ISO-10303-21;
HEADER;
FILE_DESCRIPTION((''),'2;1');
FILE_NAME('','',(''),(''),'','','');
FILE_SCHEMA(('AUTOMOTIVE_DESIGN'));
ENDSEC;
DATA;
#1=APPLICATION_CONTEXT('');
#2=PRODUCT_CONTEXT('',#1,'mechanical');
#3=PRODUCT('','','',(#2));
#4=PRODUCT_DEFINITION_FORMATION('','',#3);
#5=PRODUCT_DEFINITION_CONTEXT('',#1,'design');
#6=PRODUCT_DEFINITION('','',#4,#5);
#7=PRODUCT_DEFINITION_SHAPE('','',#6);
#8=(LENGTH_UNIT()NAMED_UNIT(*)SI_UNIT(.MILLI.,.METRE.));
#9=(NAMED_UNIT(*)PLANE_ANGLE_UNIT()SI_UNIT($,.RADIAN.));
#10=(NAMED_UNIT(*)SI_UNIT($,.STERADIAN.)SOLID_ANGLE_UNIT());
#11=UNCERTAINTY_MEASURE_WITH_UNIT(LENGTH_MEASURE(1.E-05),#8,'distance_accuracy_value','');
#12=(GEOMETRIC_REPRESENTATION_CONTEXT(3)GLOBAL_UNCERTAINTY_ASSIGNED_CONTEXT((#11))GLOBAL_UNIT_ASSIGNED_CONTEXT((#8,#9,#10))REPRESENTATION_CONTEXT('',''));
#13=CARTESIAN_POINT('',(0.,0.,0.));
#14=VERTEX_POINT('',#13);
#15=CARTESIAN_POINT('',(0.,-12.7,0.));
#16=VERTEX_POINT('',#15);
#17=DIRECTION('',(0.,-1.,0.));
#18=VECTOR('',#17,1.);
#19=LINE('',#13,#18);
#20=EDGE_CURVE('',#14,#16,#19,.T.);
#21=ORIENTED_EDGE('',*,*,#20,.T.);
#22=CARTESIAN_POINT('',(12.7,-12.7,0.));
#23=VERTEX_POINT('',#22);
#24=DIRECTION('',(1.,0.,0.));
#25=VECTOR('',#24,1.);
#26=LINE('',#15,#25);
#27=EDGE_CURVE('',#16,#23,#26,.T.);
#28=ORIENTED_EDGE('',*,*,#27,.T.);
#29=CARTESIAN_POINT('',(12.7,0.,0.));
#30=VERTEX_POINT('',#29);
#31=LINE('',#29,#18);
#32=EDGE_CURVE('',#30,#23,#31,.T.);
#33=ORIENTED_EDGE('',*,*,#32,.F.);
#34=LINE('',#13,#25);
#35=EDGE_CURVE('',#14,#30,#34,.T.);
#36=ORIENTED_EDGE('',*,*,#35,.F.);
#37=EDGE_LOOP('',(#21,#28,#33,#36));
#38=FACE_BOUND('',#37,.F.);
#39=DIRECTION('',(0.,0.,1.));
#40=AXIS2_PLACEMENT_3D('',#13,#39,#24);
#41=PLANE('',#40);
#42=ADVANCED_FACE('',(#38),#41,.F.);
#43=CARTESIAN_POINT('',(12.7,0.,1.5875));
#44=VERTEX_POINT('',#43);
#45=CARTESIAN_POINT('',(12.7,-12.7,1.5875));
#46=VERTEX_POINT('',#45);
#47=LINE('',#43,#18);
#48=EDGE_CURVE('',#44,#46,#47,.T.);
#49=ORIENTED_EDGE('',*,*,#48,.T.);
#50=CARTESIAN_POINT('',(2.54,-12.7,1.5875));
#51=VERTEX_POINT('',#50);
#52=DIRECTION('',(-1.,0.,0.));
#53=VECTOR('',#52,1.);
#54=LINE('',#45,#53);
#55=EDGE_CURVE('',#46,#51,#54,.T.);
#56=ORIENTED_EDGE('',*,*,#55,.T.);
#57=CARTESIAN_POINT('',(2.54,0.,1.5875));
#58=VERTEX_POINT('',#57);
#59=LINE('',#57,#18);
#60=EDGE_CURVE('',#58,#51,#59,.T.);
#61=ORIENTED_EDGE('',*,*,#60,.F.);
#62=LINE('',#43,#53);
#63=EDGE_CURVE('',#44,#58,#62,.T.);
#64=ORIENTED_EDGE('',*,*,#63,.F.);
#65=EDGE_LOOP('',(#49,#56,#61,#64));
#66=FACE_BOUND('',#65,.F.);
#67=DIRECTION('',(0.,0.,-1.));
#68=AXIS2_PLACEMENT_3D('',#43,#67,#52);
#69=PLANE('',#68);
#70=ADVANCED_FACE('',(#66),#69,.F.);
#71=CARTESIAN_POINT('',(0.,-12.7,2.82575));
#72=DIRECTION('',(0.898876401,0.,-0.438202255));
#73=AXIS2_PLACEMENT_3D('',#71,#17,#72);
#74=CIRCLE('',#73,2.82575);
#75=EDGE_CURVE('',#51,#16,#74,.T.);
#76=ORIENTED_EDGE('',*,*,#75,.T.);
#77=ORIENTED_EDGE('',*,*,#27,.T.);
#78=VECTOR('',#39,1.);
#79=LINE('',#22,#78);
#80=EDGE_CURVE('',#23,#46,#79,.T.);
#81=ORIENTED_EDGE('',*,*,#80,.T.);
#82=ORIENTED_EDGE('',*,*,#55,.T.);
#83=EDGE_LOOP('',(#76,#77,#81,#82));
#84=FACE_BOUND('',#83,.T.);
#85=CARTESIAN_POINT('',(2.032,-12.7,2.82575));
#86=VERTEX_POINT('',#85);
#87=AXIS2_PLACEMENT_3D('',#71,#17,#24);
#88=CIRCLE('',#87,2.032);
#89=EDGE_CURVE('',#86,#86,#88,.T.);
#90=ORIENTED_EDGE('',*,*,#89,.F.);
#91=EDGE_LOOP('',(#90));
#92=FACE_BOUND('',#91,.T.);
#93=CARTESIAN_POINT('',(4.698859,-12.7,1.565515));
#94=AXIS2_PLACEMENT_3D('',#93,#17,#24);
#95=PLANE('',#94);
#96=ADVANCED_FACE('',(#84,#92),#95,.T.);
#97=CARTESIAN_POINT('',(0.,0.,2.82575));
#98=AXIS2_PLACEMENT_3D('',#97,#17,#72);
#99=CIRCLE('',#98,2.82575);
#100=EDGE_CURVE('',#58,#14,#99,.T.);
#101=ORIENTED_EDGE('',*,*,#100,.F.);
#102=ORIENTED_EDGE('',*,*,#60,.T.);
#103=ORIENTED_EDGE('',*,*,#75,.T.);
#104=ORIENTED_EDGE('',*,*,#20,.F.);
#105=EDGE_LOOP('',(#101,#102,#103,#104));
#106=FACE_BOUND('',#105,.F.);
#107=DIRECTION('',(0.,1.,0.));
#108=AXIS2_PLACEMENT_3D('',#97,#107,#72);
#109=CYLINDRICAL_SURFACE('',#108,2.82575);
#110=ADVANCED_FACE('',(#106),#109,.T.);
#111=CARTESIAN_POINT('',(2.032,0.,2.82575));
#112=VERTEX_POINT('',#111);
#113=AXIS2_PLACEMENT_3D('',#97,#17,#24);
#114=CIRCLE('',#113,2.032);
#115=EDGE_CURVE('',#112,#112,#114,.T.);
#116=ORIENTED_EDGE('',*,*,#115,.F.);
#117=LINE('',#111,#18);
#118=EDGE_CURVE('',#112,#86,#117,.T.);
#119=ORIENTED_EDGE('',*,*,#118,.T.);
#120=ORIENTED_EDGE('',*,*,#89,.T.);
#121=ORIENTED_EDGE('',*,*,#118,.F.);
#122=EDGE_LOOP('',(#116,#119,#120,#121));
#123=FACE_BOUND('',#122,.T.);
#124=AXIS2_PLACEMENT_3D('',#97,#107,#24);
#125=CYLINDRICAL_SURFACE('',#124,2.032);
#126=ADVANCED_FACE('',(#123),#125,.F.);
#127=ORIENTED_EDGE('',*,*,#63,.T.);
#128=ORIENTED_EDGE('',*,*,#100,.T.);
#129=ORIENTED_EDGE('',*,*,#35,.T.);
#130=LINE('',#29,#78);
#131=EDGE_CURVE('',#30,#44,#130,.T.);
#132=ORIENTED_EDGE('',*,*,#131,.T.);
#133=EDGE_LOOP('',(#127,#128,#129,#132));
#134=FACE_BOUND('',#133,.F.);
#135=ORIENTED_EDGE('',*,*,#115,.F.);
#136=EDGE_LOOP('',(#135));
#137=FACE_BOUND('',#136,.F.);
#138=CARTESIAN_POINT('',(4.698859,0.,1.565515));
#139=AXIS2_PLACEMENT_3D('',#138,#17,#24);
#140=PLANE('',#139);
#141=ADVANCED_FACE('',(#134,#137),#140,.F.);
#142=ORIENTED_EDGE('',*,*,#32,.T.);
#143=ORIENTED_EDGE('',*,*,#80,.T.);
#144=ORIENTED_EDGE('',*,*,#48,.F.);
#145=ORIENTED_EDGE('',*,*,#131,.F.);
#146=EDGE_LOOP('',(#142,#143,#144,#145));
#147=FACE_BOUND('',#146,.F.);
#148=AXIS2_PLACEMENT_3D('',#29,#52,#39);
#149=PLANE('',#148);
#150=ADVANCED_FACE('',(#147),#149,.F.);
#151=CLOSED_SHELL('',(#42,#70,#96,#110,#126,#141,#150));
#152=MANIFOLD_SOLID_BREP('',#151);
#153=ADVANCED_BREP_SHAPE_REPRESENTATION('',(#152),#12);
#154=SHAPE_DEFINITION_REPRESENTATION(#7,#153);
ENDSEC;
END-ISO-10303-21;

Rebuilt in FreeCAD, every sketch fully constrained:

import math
import FreeCAD as App
import Part
import Sketcher

V = App.Vector
Q = App.Units.Quantity

doc = App.newDocument("Part")
body = doc.addObject("PartDesign::Body", "Body")

sketch1 = body.newObject("Sketcher::SketchObject", "Sketch")
sketch1.AttachmentSupport = (doc.getObject("XZ_Plane"), [""])
sketch1.MapMode = "FlatFace"
sketch1.addGeometry(Part.ArcOfCircle(Part.Circle(V(0, 2.8, 0), V(0, 0, 1), 2.8), math.radians(-26), math.radians(270)), False)
sketch1.addGeometry(Part.LineSegment(V(0, 0, 0), V(12.7, 0, 0)), False)
sketch1.addGeometry(Part.LineSegment(V(12.7, 0, 0), V(12.7, 1.6, 0)), False)
sketch1.addGeometry(Part.LineSegment(V(12.7, 1.6, 0), V(2.5, 1.6, 0)), False)
sketch1.addGeometry(Part.Circle(V(0, 2.8, 0), V(0, 0, 1), 2), False)
sketch1.addConstraint(Sketcher.Constraint("Tangent", 0, 2, 1, 1))
sketch1.addConstraint(Sketcher.Constraint("Coincident", 1, 2, 2, 1))
sketch1.addConstraint(Sketcher.Constraint("Coincident", 2, 2, 3, 1))
sketch1.addConstraint(Sketcher.Constraint("Coincident", 3, 2, 0, 1))
sketch1.addConstraint(Sketcher.Constraint("Horizontal", 1))
sketch1.addConstraint(Sketcher.Constraint("Vertical", 2))
sketch1.addConstraint(Sketcher.Constraint("Horizontal", 3))
sketch1.addConstraint(Sketcher.Constraint("Coincident", 0, 2, -1, 1))
sketch1.addConstraint(Sketcher.Constraint("Coincident", 4, 3, 0, 3))
sketch1.addConstraint(Sketcher.Constraint("Diameter", 4, Q("0.16 in")))
sketch1.addConstraint(Sketcher.Constraint("DistanceX", 1, 1, 1, 2, Q("0.5 in")))
sketch1.addConstraint(Sketcher.Constraint("DistanceX", 3, 2, 3, 1, Q("0.4 in")))
sketch1.addConstraint(Sketcher.Constraint("DistanceY", 2, 1, 2, 2, Q("0.0625 in")))
pad1 = body.newObject("PartDesign::Pad", "Pad")
pad1.Profile = sketch1
pad1.Length = Q("0.5 in")

doc.recompute()
